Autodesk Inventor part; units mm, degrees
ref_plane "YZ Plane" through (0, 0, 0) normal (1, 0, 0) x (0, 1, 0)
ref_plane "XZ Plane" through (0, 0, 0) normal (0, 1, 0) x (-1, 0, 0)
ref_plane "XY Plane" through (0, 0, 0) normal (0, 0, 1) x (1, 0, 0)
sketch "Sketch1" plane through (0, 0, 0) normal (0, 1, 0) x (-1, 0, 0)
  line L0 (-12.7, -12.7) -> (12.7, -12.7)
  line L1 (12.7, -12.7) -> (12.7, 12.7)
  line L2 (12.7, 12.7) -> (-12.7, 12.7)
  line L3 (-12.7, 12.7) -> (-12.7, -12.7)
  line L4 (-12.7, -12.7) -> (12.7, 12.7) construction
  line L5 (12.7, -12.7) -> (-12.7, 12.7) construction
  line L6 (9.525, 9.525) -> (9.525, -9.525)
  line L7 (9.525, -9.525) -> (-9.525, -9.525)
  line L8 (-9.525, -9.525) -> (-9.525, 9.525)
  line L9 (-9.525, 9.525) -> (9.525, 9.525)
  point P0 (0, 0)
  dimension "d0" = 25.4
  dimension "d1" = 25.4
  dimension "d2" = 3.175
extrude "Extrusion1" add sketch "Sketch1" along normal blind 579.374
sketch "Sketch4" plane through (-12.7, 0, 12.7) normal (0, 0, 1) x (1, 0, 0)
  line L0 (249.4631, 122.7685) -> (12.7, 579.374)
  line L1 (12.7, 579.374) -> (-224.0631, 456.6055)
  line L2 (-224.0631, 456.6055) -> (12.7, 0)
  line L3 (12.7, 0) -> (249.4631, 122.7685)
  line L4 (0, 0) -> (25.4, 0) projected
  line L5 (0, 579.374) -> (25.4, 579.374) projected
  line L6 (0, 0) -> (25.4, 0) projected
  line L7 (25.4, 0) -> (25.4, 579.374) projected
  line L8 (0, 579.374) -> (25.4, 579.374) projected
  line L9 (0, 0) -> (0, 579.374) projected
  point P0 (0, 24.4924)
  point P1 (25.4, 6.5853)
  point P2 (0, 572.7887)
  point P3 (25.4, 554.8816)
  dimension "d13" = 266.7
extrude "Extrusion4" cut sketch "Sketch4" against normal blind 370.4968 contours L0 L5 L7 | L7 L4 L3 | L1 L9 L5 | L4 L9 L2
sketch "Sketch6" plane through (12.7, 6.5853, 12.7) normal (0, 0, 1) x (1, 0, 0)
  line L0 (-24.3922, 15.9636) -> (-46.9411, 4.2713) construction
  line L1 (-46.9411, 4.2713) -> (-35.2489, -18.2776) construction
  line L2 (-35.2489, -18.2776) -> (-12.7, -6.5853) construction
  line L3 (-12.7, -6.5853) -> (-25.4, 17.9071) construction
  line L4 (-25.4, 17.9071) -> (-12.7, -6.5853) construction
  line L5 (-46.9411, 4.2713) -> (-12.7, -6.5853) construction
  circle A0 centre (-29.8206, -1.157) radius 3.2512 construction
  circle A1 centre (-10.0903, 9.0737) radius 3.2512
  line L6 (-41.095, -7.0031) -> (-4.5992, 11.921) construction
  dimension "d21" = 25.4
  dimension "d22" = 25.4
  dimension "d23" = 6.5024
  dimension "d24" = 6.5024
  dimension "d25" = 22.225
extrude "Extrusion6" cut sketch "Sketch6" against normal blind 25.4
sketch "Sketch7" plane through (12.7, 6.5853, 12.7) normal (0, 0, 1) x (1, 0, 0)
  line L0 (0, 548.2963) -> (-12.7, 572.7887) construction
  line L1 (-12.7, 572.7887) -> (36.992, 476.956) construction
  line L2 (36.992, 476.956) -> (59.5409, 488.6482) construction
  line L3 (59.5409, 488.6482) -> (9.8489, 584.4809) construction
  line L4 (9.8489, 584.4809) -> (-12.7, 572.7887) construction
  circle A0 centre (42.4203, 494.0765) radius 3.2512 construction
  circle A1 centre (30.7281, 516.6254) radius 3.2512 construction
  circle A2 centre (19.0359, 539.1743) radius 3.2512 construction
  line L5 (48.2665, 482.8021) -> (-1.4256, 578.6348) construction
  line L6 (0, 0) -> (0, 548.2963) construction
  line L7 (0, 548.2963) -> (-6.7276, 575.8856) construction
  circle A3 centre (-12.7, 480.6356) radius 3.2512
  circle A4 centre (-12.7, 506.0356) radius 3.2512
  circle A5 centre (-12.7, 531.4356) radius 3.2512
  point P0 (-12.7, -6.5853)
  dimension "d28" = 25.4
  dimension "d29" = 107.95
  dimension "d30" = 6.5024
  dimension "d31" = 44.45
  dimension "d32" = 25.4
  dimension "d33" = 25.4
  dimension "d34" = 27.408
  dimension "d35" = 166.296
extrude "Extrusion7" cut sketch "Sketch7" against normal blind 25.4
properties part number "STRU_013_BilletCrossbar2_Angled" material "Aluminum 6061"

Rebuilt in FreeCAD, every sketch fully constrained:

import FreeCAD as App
import Part
import Sketcher
from FreeCAD import Vector
Q = App.Units.Quantity


def add_polygon(sketch, points):
    """Adds a closed chain of lines whose ends are joined by coincident constraints."""
    first, n = sketch.GeometryCount, len(points)
    for a, b in zip(points, points[1:] + points[:1]):
        sketch.addGeometry(Part.LineSegment(App.Vector(*a, 0), App.Vector(*b, 0)), False)
    for i in range(n):
        sketch.addConstraint(Sketcher.Constraint("Coincident", first + i, 2, first + (i + 1) % n, 1))

doc = App.newDocument("Part")
body = doc.addObject("PartDesign::Body", "Body")

sketch1 = body.newObject("Sketcher::SketchObject", "Sketch")
sketch1.AttachmentSupport = (doc.getObject("XZ_Plane"), [""])
sketch1.MapMode = "FlatFace"
add_polygon(sketch1, [(13, 13), (13, -13), (-13, -13), (-13, 13)])
add_polygon(sketch1, [(10, 10), (-10, 10), (-10, -10), (10, -10)])
sketch1.addConstraint([
    Sketcher.Constraint("Vertical", 0),
    Sketcher.Constraint("Horizontal", 1),
    Sketcher.Constraint("Vertical", 2),
    Sketcher.Constraint("Horizontal", 3),
    Sketcher.Constraint("Horizontal", 4),
    Sketcher.Constraint("Vertical", 5),
    Sketcher.Constraint("Horizontal", 6),
    Sketcher.Constraint("Vertical", 7),
    Sketcher.Constraint("Symmetric", 0, 2, 2, 2, -1, 1),
    Sketcher.Constraint("Symmetric", 4, 2, 6, 2, -1, 1),
    Sketcher.Constraint("Equal", 3, 0),
    Sketcher.Constraint("Equal", 6, 5),
    Sketcher.Constraint("DistanceX", 1, 2, 1, 1, Q("1 in")),
    Sketcher.Constraint("DistanceX", 2, 2, 4, 2, Q("0.125 in")),
])
pad1 = body.newObject("PartDesign::Pad", "Pad")
pad1.Profile = sketch1
pad1.Length = Q("22.81 in")
pad1.Reversed = True

sketch2 = body.newObject("Sketcher::SketchObject", "Sketch001")
sketch2.AttachmentSupport = (doc.getObject("XY_Plane"), [""])
sketch2.MapMode = "FlatFace"
sketch2.AttachmentOffset = App.Placement(Vector(0, 0, 0.5 * 25.4), App.Rotation())
add_polygon(sketch2, [(0, 579), (13, 555), (13, 579)])
add_polygon(sketch2, [(13, 0), (13, 7), (0, 0)])
add_polygon(sketch2, [(-13, 573), (0, 579), (-13, 579)])
add_polygon(sketch2, [(-13, 0), (0, 0), (-13, 24)])
sketch2.addConstraint([
    Sketcher.Constraint("Vertical", 1),
    Sketcher.Constraint("Horizontal", 2),
    Sketcher.Constraint("Vertical", 3),
    Sketcher.Constraint("Horizontal", 5),
    Sketcher.Constraint("Horizontal", 7),
    Sketcher.Constraint("Vertical", 8),
    Sketcher.Constraint("Horizontal", 9),
    Sketcher.Constraint("Vertical", 11),
    Sketcher.Constraint("Coincident", 4, 2, -1, 1),
    Sketcher.Constraint("Coincident", 9, 2, -1, 1),
    Sketcher.Constraint("Coincident", 6, 2, 2, 2),
    Sketcher.Constraint("PointOnObject", 2, 2, -2),
    Sketcher.Constraint("Perpendicular", 0, 4),
    Sketcher.Constraint("Parallel", 4, 6),
    Sketcher.Constraint("Perpendicular", 6, 10),
    Sketcher.Constraint("Vertical", 1, 2, 3, 2),
    Sketcher.Constraint("Vertical", 8, 2, 10, 2),
    Sketcher.Constraint("Equal", 5, 7),
    Sketcher.Constraint("DistanceX", 2, 2, 2, 1, Q("0.5 in")),
    Sketcher.Constraint("DistanceY", -1, 1, 1, 2, Q("22.81 in")),
    Sketcher.Constraint("DistanceY", 0, 2, 8, 2, Q("0.705 in")),
])
pocket1 = body.newObject("PartDesign::Pocket", "Pocket")
pocket1.Profile = sketch2
pocket1.Length = Q("14.5864882 in")

sketch3 = body.newObject("Sketcher::SketchObject", "Sketch002")
sketch3.AttachmentSupport = (doc.getObject("XY_Plane"), [""])
sketch3.MapMode = "FlatFace"
sketch3.AttachmentOffset = App.Placement(Vector(0, 0, 0.5 * 25.4), App.Rotation())
sketch3.addGeometry(Part.Circle(Vector(2.6, 15.7, 0), Vector(0, 0, 1), 3.3), False)
sketch3.addConstraint([
    Sketcher.Constraint("Diameter", 0, Q("0.256 in")),
    Sketcher.Constraint("DistanceY", -1, 1, 0, 3, Q("0.6165 in")),
    Sketcher.Constraint("DistanceX", -1, 1, 0, 3, 2.6097),
])
pocket2 = body.newObject("PartDesign::Pocket", "Pocket001")
pocket2.Profile = sketch3
pocket2.Length = Q("1 in")

sketch4 = body.newObject("Sketcher::SketchObject", "Sketch003")
sketch4.AttachmentSupport = (doc.getObject("XY_Plane"), [""])
sketch4.MapMode = "FlatFace"
sketch4.AttachmentOffset = App.Placement(Vector(0, 0, 0.5 * 25.4), App.Rotation())
sketch4.addGeometry([
    Part.Circle(Vector(0, 487.2, 0), Vector(0, 0, 1), 3.3),
    Part.Circle(Vector(0, 512.6, 0), Vector(0, 0, 1), 3.3),
    Part.Circle(Vector(0, 538, 0), Vector(0, 0, 1), 3.3),
], False)
sketch4.addConstraint([
    Sketcher.Constraint("Equal", 0, 1),
    Sketcher.Constraint("Equal", 1, 2),
    Sketcher.Constraint("PointOnObject", 0, 3, -2),
    Sketcher.Constraint("PointOnObject", 1, 3, -2),
    Sketcher.Constraint("PointOnObject", 2, 3, -2),
    Sketcher.Constraint("Diameter", 0, Q("0.256 in")),
    Sketcher.Constraint("DistanceY", 0, 3, 1, 3, Q("1 in")),
    Sketcher.Constraint("DistanceY", 1, 3, 2, 3, Q("1 in")),
    Sketcher.Constraint("DistanceY", -1, 1, 0, 3, 487.221),
])
pocket3 = body.newObject("PartDesign::Pocket", "Pocket002")
pocket3.Profile = sketch4
pocket3.Length = Q("1 in")

doc.recompute()
